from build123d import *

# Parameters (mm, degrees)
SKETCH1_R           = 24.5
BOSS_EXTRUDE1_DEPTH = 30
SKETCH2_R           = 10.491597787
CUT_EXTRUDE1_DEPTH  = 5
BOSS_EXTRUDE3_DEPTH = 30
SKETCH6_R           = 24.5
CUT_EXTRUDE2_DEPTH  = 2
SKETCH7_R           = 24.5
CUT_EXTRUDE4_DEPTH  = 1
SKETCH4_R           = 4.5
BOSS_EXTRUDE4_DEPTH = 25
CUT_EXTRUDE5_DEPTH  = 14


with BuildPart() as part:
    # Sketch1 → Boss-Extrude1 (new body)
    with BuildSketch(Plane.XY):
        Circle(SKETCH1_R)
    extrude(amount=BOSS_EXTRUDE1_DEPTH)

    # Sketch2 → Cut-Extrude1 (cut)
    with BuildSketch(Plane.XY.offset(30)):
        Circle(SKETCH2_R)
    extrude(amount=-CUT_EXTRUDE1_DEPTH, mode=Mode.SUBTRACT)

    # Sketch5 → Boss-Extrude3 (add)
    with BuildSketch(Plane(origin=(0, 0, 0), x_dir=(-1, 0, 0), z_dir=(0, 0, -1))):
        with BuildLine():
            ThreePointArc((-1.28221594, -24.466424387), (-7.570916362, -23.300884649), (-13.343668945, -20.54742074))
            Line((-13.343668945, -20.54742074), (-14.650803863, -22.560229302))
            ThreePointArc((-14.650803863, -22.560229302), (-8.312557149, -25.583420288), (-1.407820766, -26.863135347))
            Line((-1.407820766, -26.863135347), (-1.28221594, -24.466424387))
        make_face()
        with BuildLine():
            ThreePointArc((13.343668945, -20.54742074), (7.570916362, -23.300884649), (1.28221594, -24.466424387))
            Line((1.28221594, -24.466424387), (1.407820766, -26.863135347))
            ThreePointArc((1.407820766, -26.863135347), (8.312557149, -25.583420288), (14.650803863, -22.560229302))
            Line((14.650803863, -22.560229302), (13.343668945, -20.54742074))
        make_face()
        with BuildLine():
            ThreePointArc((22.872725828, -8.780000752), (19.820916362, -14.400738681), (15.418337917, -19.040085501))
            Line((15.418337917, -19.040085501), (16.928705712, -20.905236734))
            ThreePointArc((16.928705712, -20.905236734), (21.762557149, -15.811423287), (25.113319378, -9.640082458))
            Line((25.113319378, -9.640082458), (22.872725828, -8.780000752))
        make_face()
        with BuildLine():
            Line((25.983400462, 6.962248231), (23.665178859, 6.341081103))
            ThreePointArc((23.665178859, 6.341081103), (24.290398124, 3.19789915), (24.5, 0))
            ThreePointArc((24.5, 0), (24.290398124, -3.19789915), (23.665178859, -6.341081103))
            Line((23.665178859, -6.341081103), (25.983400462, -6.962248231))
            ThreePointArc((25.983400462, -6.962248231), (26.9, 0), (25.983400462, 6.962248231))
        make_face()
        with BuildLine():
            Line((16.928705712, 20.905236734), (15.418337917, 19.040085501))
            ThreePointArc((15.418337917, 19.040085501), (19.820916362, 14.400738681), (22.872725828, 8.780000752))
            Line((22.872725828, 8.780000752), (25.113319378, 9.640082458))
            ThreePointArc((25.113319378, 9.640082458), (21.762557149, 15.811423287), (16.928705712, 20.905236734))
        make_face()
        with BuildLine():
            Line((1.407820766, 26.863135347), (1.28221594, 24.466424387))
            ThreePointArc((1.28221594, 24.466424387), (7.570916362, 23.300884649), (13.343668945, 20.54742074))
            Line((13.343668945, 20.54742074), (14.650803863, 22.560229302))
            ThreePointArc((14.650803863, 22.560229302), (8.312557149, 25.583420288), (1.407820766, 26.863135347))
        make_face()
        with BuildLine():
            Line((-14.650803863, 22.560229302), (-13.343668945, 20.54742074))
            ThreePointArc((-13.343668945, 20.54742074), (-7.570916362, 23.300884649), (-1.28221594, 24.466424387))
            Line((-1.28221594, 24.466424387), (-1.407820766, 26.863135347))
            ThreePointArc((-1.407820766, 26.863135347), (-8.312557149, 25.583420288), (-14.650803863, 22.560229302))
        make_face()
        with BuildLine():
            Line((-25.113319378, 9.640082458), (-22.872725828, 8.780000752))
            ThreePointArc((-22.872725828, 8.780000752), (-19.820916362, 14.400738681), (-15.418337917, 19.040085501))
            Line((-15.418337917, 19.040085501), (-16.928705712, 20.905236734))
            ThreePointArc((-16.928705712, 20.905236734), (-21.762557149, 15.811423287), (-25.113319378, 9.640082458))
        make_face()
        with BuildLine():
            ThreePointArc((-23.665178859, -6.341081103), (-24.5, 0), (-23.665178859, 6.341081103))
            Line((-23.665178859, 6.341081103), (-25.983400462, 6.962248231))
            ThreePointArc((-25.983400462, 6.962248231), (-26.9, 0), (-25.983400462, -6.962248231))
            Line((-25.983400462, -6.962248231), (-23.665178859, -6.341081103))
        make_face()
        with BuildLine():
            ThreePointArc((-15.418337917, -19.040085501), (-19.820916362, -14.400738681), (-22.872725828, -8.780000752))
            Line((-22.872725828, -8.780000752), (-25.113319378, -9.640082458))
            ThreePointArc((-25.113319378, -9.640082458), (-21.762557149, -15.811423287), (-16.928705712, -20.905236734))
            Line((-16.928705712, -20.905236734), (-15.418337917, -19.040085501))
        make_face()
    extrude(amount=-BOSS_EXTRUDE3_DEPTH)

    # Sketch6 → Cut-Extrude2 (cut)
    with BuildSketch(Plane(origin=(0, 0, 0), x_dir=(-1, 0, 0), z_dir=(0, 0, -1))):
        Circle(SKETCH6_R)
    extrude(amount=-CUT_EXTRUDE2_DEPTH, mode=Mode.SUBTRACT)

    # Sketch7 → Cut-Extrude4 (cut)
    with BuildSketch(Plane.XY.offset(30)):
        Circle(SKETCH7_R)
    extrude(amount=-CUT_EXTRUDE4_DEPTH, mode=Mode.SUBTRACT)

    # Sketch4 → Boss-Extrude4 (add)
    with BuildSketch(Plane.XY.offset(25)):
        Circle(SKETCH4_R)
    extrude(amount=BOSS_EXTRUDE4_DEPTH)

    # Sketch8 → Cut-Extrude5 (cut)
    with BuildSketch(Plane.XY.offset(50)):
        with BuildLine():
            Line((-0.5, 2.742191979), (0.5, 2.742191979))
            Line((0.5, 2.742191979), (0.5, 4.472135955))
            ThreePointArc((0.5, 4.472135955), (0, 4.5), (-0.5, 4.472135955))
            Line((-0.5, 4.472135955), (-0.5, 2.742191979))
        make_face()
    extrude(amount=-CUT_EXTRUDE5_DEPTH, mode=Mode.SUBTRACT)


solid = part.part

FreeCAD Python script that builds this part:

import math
import FreeCAD as App
import Part
import Sketcher

V = App.Vector
Q = App.Units.Quantity

doc = App.newDocument("Part")
body = doc.addObject("PartDesign::Body", "Body")

# Sketch on XY plane
sketch1 = doc.addObject("Sketcher::SketchObject", "Sketch")
body.addObject(sketch1)
sketch1.AttachmentSupport = (doc.XY_Plane, [""])
sketch1.MapMode = "FlatFace"
sketch1.addGeometry(Part.Circle(V(0, 0, 0), V(0, 0, 1), 24), False)
sketch1.addConstraint(Sketcher.Constraint("Coincident", 0, 3, -1, 1))
sketch1.addConstraint(Sketcher.Constraint("Diameter", 0, Q("49 mm")))
pad1 = doc.addObject("PartDesign::Pad", "Pad")
body.addObject(pad1)
pad1.Profile = sketch1
pad1.Length = 30

# Sketch on XY plane
sketch2 = doc.addObject("Sketcher::SketchObject", "Sketch001")
body.addObject(sketch2)
sketch2.AttachmentSupport = (doc.XY_Plane, [""])
sketch2.MapMode = "FlatFace"
sketch2.AttachmentOffset = App.Placement(V(0, 0, 30), App.Rotation())
sketch2.addGeometry(Part.Circle(V(0, 0, 0), V(0, 0, 1), 10), False)
sketch2.addConstraint(Sketcher.Constraint("Coincident", 0, 3, -1, 1))
sketch2.addConstraint(Sketcher.Constraint("Diameter", 0, Q("20.983196 mm")))
pocket1 = doc.addObject("PartDesign::Pocket", "Pocket")
body.addObject(pocket1)
pocket1.Profile = sketch2
pocket1.Length = 5

# Sketch on XY plane
sketch3 = doc.addObject("Sketcher::SketchObject", "Sketch002")
body.addObject(sketch3)
sketch3.AttachmentSupport = (doc.XY_Plane, [""])
sketch3.MapMode = "FlatFace"
sketch3.addGeometry(Part.ArcOfCircle(Part.Circle(V(0, 0, 0), V(0, 0, 1), 24.5), math.radians(-87), math.radians(-57)), False)
sketch3.addGeometry(Part.LineSegment(V(13.3, -20.5, 0), V(14.7, -22.6, 0)), False)
sketch3.addGeometry(Part.ArcOfCircle(Part.Circle(V(0, 0, 0), V(0, 0, 1), 26.9), math.radians(-87), math.radians(-57)), False)
sketch3.addGeometry(Part.LineSegment(V(1.4, -26.9, 0), V(1.3, -24.5, 0)), False)
sketch3.addGeometry(Part.ArcOfCircle(Part.Circle(V(0, 0, 0), V(0, 0, 1), 24.5), math.radians(-123), math.radians(-93)), False)
sketch3.addGeometry(Part.LineSegment(V(-1.3, -24.5, 0), V(-1.4, -26.9, 0)), False)
sketch3.addGeometry(Part.ArcOfCircle(Part.Circle(V(0, 0, 0), V(0, 0, 1), 26.9), math.radians(-123), math.radians(-93)), False)
sketch3.addGeometry(Part.LineSegment(V(-14.7, -22.6, 0), V(-13.3, -20.5, 0)), False)
sketch3.addGeometry(Part.ArcOfCircle(Part.Circle(V(0, 0, 0), V(0, 0, 1), 24.5), math.radians(-159), math.radians(-129)), False)
sketch3.addGeometry(Part.LineSegment(V(-15.4, -19, 0), V(-16.9, -20.9, 0)), False)
sketch3.addGeometry(Part.ArcOfCircle(Part.Circle(V(0, 0, 0), V(0, 0, 1), 26.9), math.radians(-159), math.radians(-129)), False)
sketch3.addGeometry(Part.LineSegment(V(-25.1, -9.6, 0), V(-22.9, -8.8, 0)), False)
sketch3.addGeometry(Part.LineSegment(V(-26, 7, 0), V(-23.7, 6.3, 0)), False)
sketch3.addGeometry(Part.ArcOfCircle(Part.Circle(V(0, 0, 0), V(0, 0, 1), 24.5), math.radians(165), math.radians(180)), False)
sketch3.addGeometry(Part.ArcOfCircle(Part.Circle(V(0, 0, 0), V(0, 0, 1), 24.5), math.radians(180), math.radians(195)), False)
sketch3.addGeometry(Part.LineSegment(V(-23.7, -6.3, 0), V(-26, -7, 0)), False)
sketch3.addGeometry(Part.ArcOfCircle(Part.Circle(V(0, 0, 0), V(0, 0, 1), 26.9), math.radians(165), math.radians(195)), False)
sketch3.addGeometry(Part.LineSegment(V(-16.9, 20.9, 0), V(-15.4, 19, 0)), False)
sketch3.addGeometry(Part.ArcOfCircle(Part.Circle(V(0, 0, 0), V(0, 0, 1), 24.5), math.radians(129), math.radians(159)), False)
sketch3.addGeometry(Part.LineSegment(V(-22.9, 8.8, 0), V(-25.1, 9.6, 0)), False)
sketch3.addGeometry(Part.ArcOfCircle(Part.Circle(V(0, 0, 0), V(0, 0, 1), 26.9), math.radians(129), math.radians(159)), False)
sketch3.addGeometry(Part.LineSegment(V(-1.4, 26.9, 0), V(-1.3, 24.5, 0)), False)
sketch3.addGeometry(Part.ArcOfCircle(Part.Circle(V(0, 0, 0), V(0, 0, 1), 24.5), math.radians(93), math.radians(123)), False)
sketch3.addGeometry(Part.LineSegment(V(-13.3, 20.5, 0), V(-14.7, 22.6, 0)), False)
sketch3.addGeometry(Part.ArcOfCircle(Part.Circle(V(0, 0, 0), V(0, 0, 1), 26.9), math.radians(93), math.radians(123)), False)
sketch3.addGeometry(Part.LineSegment(V(14.7, 22.6, 0), V(13.3, 20.5, 0)), False)
sketch3.addGeometry(Part.ArcOfCircle(Part.Circle(V(0, 0, 0), V(0, 0, 1), 24.5), math.radians(57), math.radians(87)), False)
sketch3.addGeometry(Part.LineSegment(V(1.3, 24.5, 0), V(1.4, 26.9, 0)), False)
sketch3.addGeometry(Part.ArcOfCircle(Part.Circle(V(0, 0, 0), V(0, 0, 1), 26.9), math.radians(57), math.radians(87)), False)
sketch3.addGeometry(Part.LineSegment(V(25.1, 9.6, 0), V(22.9, 8.8, 0)), False)
sketch3.addGeometry(Part.ArcOfCircle(Part.Circle(V(0, 0, 0), V(0, 0, 1), 24.5), math.radians(21), math.radians(51)), False)
sketch3.addGeometry(Part.LineSegment(V(15.4, 19, 0), V(16.9, 20.9, 0)), False)
sketch3.addGeometry(Part.ArcOfCircle(Part.Circle(V(0, 0, 0), V(0, 0, 1), 26.9), math.radians(21), math.radians(51)), False)
sketch3.addGeometry(Part.ArcOfCircle(Part.Circle(V(0, 0, 0), V(0, 0, 1), 24.5), math.radians(-15), math.radians(15)), False)
sketch3.addGeometry(Part.LineSegment(V(23.7, 6.3, 0), V(26, 7, 0)), False)
sketch3.addGeometry(Part.ArcOfCircle(Part.Circle(V(0, 0, 0), V(0, 0, 1), 26.9), math.radians(-15), math.radians(15)), False)
sketch3.addGeometry(Part.LineSegment(V(26, -7, 0), V(23.7, -6.3, 0)), False)
sketch3.addGeometry(Part.ArcOfCircle(Part.Circle(V(0, 0, 0), V(0, 0, 1), 24.5), math.radians(-51), math.radians(-21)), False)
sketch3.addGeometry(Part.LineSegment(V(22.9, -8.8, 0), V(25.1, -9.6, 0)), False)
sketch3.addGeometry(Part.ArcOfCircle(Part.Circle(V(0, 0, 0), V(0, 0, 1), 26.9), math.radians(-51), math.radians(-21)), False)
sketch3.addGeometry(Part.LineSegment(V(16.9, -20.9, 0), V(15.4, -19, 0)), False)
sketch3.addConstraint(Sketcher.Constraint("Coincident", 0, 2, 1, 1))
sketch3.addConstraint(Sketcher.Constraint("Coincident", 1, 2, 2, 2))
sketch3.addConstraint(Sketcher.Constraint("Coincident", 2, 1, 3, 1))
sketch3.addConstraint(Sketcher.Constraint("Coincident", 3, 2, 0, 1))
sketch3.addConstraint(Sketcher.Constraint("Coincident", 4, 2, 5, 1))
sketch3.addConstraint(Sketcher.Constraint("Coincident", 5, 2, 6, 2))
sketch3.addConstraint(Sketcher.Constraint("Coincident", 6, 1, 7, 1))
sketch3.addConstraint(Sketcher.Constraint("Coincident", 7, 2, 4, 1))
sketch3.addConstraint(Sketcher.Constraint("Coincident", 8, 2, 9, 1))
sketch3.addConstraint(Sketcher.Constraint("Coincident", 9, 2, 10, 2))
sketch3.addConstraint(Sketcher.Constraint("Coincident", 10, 1, 11, 1))
sketch3.addConstraint(Sketcher.Constraint("Coincident", 11, 2, 8, 1))
sketch3.addConstraint(Sketcher.Constraint("Coincident", 12, 2, 13, 1))
sketch3.addConstraint(Sketcher.Constraint("Tangent", 13, 2, 14, 1))
sketch3.addConstraint(Sketcher.Constraint("Coincident", 14, 2, 15, 1))
sketch3.addConstraint(Sketcher.Constraint("Coincident", 15, 2, 16, 2))
sketch3.addConstraint(Sketcher.Constraint("Coincident", 16, 1, 12, 1))
sketch3.addConstraint(Sketcher.Constraint("Coincident", 17, 2, 18, 1))
sketch3.addConstraint(Sketcher.Constraint("Coincident", 18, 2, 19, 1))
sketch3.addConstraint(Sketcher.Constraint("Coincident", 19, 2, 20, 2))
sketch3.addConstraint(Sketcher.Constraint("Coincident", 20, 1, 17, 1))
sketch3.addConstraint(Sketcher.Constraint("Coincident", 21, 2, 22, 1))
sketch3.addConstraint(Sketcher.Constraint("Coincident", 22, 2, 23, 1))
sketch3.addConstraint(Sketcher.Constraint("Coincident", 23, 2, 24, 2))
sketch3.addConstraint(Sketcher.Constraint("Coincident", 24, 1, 21, 1))
sketch3.addConstraint(Sketcher.Constraint("Coincident", 25, 2, 26, 1))
sketch3.addConstraint(Sketcher.Constraint("Coincident", 26, 2, 27, 1))
sketch3.addConstraint(Sketcher.Constraint("Coincident", 27, 2, 28, 2))
sketch3.addConstraint(Sketcher.Constraint("Coincident", 28, 1, 25, 1))
sketch3.addConstraint(Sketcher.Constraint("Coincident", 29, 2, 30, 1))
sketch3.addConstraint(Sketcher.Constraint("Coincident", 30, 2, 31, 1))
sketch3.addConstraint(Sketcher.Constraint("Coincident", 31, 2, 32, 2))
sketch3.addConstraint(Sketcher.Constraint("Coincident", 32, 1, 29, 1))
sketch3.addConstraint(Sketcher.Constraint("Coincident", 33, 2, 34, 1))
sketch3.addConstraint(Sketcher.Constraint("Coincident", 34, 2, 35, 2))
sketch3.addConstraint(Sketcher.Constraint("Coincident", 35, 1, 36, 1))
sketch3.addConstraint(Sketcher.Constraint("Coincident", 36, 2, 33, 1))
sketch3.addConstraint(Sketcher.Constraint("Coincident", 37, 2, 38, 1))
sketch3.addConstraint(Sketcher.Constraint("Coincident", 38, 2, 39, 2))
sketch3.addConstraint(Sketcher.Constraint("Coincident", 39, 1, 40, 1))
sketch3.addConstraint(Sketcher.Constraint("Coincident", 40, 2, 37, 1))
sketch3.addConstraint(Sketcher.Constraint("Coincident", 0, 3, -1, 1))
sketch3.addConstraint(Sketcher.Constraint("Coincident", 2, 3, -1, 1))
sketch3.addConstraint(Sketcher.Constraint("Coincident", 4, 3, -1, 1))
sketch3.addConstraint(Sketcher.Constraint("Coincident", 6, 3, -1, 1))
sketch3.addConstraint(Sketcher.Constraint("Coincident", 8, 3, -1, 1))
sketch3.addConstraint(Sketcher.Constraint("Coincident", 10, 3, -1, 1))
sketch3.addConstraint(Sketcher.Constraint("Coincident", 13, 3, -1, 1))
sketch3.addConstraint(Sketcher.Constraint("Coincident", 16, 3, -1, 1))
sketch3.addConstraint(Sketcher.Constraint("Coincident", 18, 3, -1, 1))
sketch3.addConstraint(Sketcher.Constraint("Coincident", 20, 3, -1, 1))
sketch3.addConstraint(Sketcher.Constraint("Coincident", 22, 3, -1, 1))
sketch3.addConstraint(Sketcher.Constraint("Coincident", 24, 3, -1, 1))
sketch3.addConstraint(Sketcher.Constraint("Coincident", 26, 3, -1, 1))
sketch3.addConstraint(Sketcher.Constraint("Coincident", 28, 3, -1, 1))
sketch3.addConstraint(Sketcher.Constraint("Coincident", 30, 3, -1, 1))
sketch3.addConstraint(Sketcher.Constraint("Coincident", 32, 3, -1, 1))
sketch3.addConstraint(Sketcher.Constraint("Coincident", 33, 3, -1, 1))
sketch3.addConstraint(Sketcher.Constraint("Coincident", 35, 3, -1, 1))
sketch3.addConstraint(Sketcher.Constraint("Coincident", 37, 3, -1, 1))
sketch3.addConstraint(Sketcher.Constraint("Coincident", 39, 3, -1, 1))
sketch3.addConstraint(Sketcher.Constraint("Equal", 0, 4))
sketch3.addConstraint(Sketcher.Constraint("Equal", 2, 6))
sketch3.addConstraint(Sketcher.Constraint("Equal", 4, 8))
sketch3.addConstraint(Sketcher.Constraint("Equal", 6, 10))
sketch3.addConstraint(Sketcher.Constraint("Equal", 8, 13))
sketch3.addConstraint(Sketcher.Constraint("Equal", 13, 14))
sketch3.addConstraint(Sketcher.Constraint("Equal", 10, 16))
sketch3.addConstraint(Sketcher.Constraint("Equal", 14, 18))
sketch3.addConstraint(Sketcher.Constraint("Equal", 16, 20))
sketch3.addConstraint(Sketcher.Constraint("Equal", 18, 22))
sketch3.addConstraint(Sketcher.Constraint("Equal", 20, 24))
sketch3.addConstraint(Sketcher.Constraint("Equal", 22, 26))
sketch3.addConstraint(Sketcher.Constraint("Equal", 24, 28))
sketch3.addConstraint(Sketcher.Constraint("Equal", 26, 30))
sketch3.addConstraint(Sketcher.Constraint("Equal", 28, 32))
sketch3.addConstraint(Sketcher.Constraint("Equal", 30, 33))
sketch3.addConstraint(Sketcher.Constraint("Equal", 32, 35))
sketch3.addConstraint(Sketcher.Constraint("Equal", 33, 37))
sketch3.addConstraint(Sketcher.Constraint("Equal", 35, 39))
sketch3.addConstraint(Sketcher.Constraint("PointOnObject", 13, 2, -1))
sketch3.addConstraint(Sketcher.Constraint("Parallel", 3, 21))
sketch3.addConstraint(Sketcher.Constraint("Parallel", 1, 23))
sketch3.addConstraint(Sketcher.Constraint("Parallel", 7, 25))
sketch3.addConstraint(Sketcher.Constraint("Parallel", 5, 27))
sketch3.addConstraint(Sketcher.Constraint("Parallel", 11, 29))
sketch3.addConstraint(Sketcher.Constraint("Parallel", 9, 31))
sketch3.addConstraint(Sketcher.Constraint("Parallel", 15, 34))
sketch3.addConstraint(Sketcher.Constraint("Parallel", 12, 36))
sketch3.addConstraint(Sketcher.Constraint("Parallel", 19, 38))
sketch3.addConstraint(Sketcher.Constraint("Parallel", 17, 40))
sketch3.addConstraint(Sketcher.Constraint("Horizontal", 3, 2, 4, 2))
sketch3.addConstraint(Sketcher.Constraint("Horizontal", 2, 1, 5, 2))
sketch3.addConstraint(Sketcher.Constraint("Horizontal", 1, 2, 6, 1))
sketch3.addConstraint(Sketcher.Constraint("Horizontal", 0, 2, 7, 2))
sketch3.addConstraint(Sketcher.Constraint("Horizontal", 22, 2, 25, 2))
sketch3.addConstraint(Sketcher.Constraint("Horizontal", 21, 2, 26, 2))
sketch3.addConstraint(Sketcher.Constraint("Horizontal", 18, 2, 29, 2))
sketch3.addConstraint(Sketcher.Constraint("Horizontal", 17, 2, 30, 2))
sketch3.addConstraint(Sketcher.Constraint("Horizontal", 20, 1, 31, 2))
sketch3.addConstraint(Sketcher.Constraint("Horizontal", 19, 2, 32, 1))
sketch3.addConstraint(Sketcher.Constraint("Horizontal", 12, 2, 33, 2))
sketch3.addConstraint(Sketcher.Constraint("Horizontal", 16, 1, 34, 2))
sketch3.addConstraint(Sketcher.Constraint("Horizontal", 15, 2, 35, 1))
sketch3.addConstraint(Sketcher.Constraint("Horizontal", 11, 2, 37, 2))
sketch3.addConstraint(Sketcher.Constraint("Horizontal", 9, 2, 39, 1))
sketch3.addConstraint(Sketcher.Constraint("Vertical", 12, 2, 14, 2))
sketch3.addConstraint(Sketcher.Constraint("Vertical", 8, 2, 17, 2))
sketch3.addConstraint(Sketcher.Constraint("Vertical", 11, 2, 18, 2))
sketch3.addConstraint(Sketcher.Constraint("Vertical", 4, 2, 21, 2))
sketch3.addConstraint(Sketcher.Constraint("Vertical", 7, 2, 22, 2))
sketch3.addConstraint(Sketcher.Constraint("Radius", 0, Q("24.5 mm")))
sketch3.addConstraint(Sketcher.Constraint("Radius", 2, Q("26.9 mm")))
sketch3.addConstraint(Sketcher.Constraint("DistanceY", 11, 2, -1, 1, Q("8.780001 mm")))
sketch3.addConstraint(Sketcher.Constraint("DistanceX", 15, 2, -1, 1, Q("25.9834 mm")))
sketch3.addConstraint(Sketcher.Constraint("DistanceX", -1, 1, 0, 2, Q("13.343669 mm")))
sketch3.addConstraint(Sketcher.Constraint("DistanceY", 1, 2, -1, 1, Q("22.560229 mm")))
sketch3.addConstraint(Sketcher.Constraint("DistanceX", -1, 1, 2, 1, Q("1.407821 mm")))
sketch3.addConstraint(Sketcher.Constraint("DistanceX", 10, 1, -1, 1, Q("25.113319 mm")))
sketch3.addConstraint(Sketcher.Constraint("DistanceX", 12, 2, -1, 1, Q("23.665179 mm")))
sketch3.addConstraint(Sketcher.Constraint("DistanceX", -1, 1, 3, 2, Q("1.282216 mm")))
sketch3.addConstraint(Sketcher.Constraint("DistanceX", 8, 2, -1, 1, Q("15.418338 mm")))
sketch3.addConstraint(Sketcher.Constraint("DistanceX", 9, 2, -1, 1, Q("16.928706 mm")))
pad2 = doc.addObject("PartDesign::Pad", "Pad001")
body.addObject(pad2)
pad2.Profile = sketch3
pad2.Length = 30

# Sketch on XY plane
sketch4 = doc.addObject("Sketcher::SketchObject", "Sketch003")
body.addObject(sketch4)
sketch4.AttachmentSupport = (doc.XY_Plane, [""])
sketch4.MapMode = "FlatFace"
sketch4.addGeometry(Part.Circle(V(0, 0, 0), V(0, 0, 1), 24), False)
sketch4.addConstraint(Sketcher.Constraint("Coincident", 0, 3, -1, 1))
sketch4.addConstraint(Sketcher.Constraint("Diameter", 0, Q("49 mm")))
pocket2 = doc.addObject("PartDesign::Pocket", "Pocket001")
body.addObject(pocket2)
pocket2.Profile = sketch4
pocket2.Length = 2
pocket2.Reversed = True

# Sketch on XY plane
sketch5 = doc.addObject("Sketcher::SketchObject", "Sketch004")
body.addObject(sketch5)
sketch5.AttachmentSupport = (doc.XY_Plane, [""])
sketch5.MapMode = "FlatFace"
sketch5.AttachmentOffset = App.Placement(V(0, 0, 30), App.Rotation())
sketch5.addGeometry(Part.Circle(V(0, 0, 0), V(0, 0, 1), 24), False)
sketch5.addConstraint(Sketcher.Constraint("Coincident", 0, 3, -1, 1))
sketch5.addConstraint(Sketcher.Constraint("Diameter", 0, Q("49 mm")))
pocket3 = doc.addObject("PartDesign::Pocket", "Pocket002")
body.addObject(pocket3)
pocket3.Profile = sketch5
pocket3.Length = 1

# Sketch on XY plane
sketch6 = doc.addObject("Sketcher::SketchObject", "Sketch005")
body.addObject(sketch6)
sketch6.AttachmentSupport = (doc.XY_Plane, [""])
sketch6.MapMode = "FlatFace"
sketch6.AttachmentOffset = App.Placement(V(0, 0, 25), App.Rotation())
sketch6.addGeometry(Part.Circle(V(0, 0, 0), V(0, 0, 1), 4.5), False)
sketch6.addConstraint(Sketcher.Constraint("Coincident", 0, 3, -1, 1))
sketch6.addConstraint(Sketcher.Constraint("Diameter", 0, Q("9 mm")))
pad3 = doc.addObject("PartDesign::Pad", "Pad002")
body.addObject(pad3)
pad3.Profile = sketch6
pad3.Length = 25

# Sketch on XY plane
sketch7 = doc.addObject("Sketcher::SketchObject", "Sketch006")
body.addObject(sketch7)
sketch7.AttachmentSupport = (doc.XY_Plane, [""])
sketch7.MapMode = "FlatFace"
sketch7.AttachmentOffset = App.Placement(V(0, 0, 50), App.Rotation())
sketch7.addGeometry(Part.LineSegment(V(-0.5, 2.7, 0), V(0.5, 2.7, 0)), False)
sketch7.addGeometry(Part.LineSegment(V(0.5, 2.7, 0), V(0.5, 4.5, 0)), False)
sketch7.addGeometry(Part.ArcOfCircle(Part.Circle(V(0, 0, 0), V(0, 0, 1), 4.5), math.radians(83.62), math.radians(96.38)), False)
sketch7.addGeometry(Part.LineSegment(V(-0.5, 4.5, 0), V(-0.5, 2.7, 0)), False)
sketch7.addConstraint(Sketcher.Constraint("Coincident", 0, 2, 1, 1))
sketch7.addConstraint(Sketcher.Constraint("Coincident", 1, 2, 2, 1))
sketch7.addConstraint(Sketcher.Constraint("Coincident", 2, 2, 3, 1))
sketch7.addConstraint(Sketcher.Constraint("Coincident", 3, 2, 0, 1))
sketch7.addConstraint(Sketcher.Constraint("Horizontal", 0))
sketch7.addConstraint(Sketcher.Constraint("Vertical", 1))
sketch7.addConstraint(Sketcher.Constraint("Vertical", 3))
sketch7.addConstraint(Sketcher.Constraint("Coincident", 2, 3, -1, 1))
sketch7.addConstraint(Sketcher.Constraint("Horizontal", 1, 2, 2, 2))
sketch7.addConstraint(Sketcher.Constraint("Radius", 2, Q("4.5 mm")))
sketch7.addConstraint(Sketcher.Constraint("DistanceX", 0, 1, 0, 2, Q("1 mm")))
sketch7.addConstraint(Sketcher.Constraint("DistanceY", 1, 1, 1, 2, Q("1.729944 mm")))
pocket4 = doc.addObject("PartDesign::Pocket", "Pocket003")
body.addObject(pocket4)
pocket4.Profile = sketch7
pocket4.Length = 14

doc.recompute()
